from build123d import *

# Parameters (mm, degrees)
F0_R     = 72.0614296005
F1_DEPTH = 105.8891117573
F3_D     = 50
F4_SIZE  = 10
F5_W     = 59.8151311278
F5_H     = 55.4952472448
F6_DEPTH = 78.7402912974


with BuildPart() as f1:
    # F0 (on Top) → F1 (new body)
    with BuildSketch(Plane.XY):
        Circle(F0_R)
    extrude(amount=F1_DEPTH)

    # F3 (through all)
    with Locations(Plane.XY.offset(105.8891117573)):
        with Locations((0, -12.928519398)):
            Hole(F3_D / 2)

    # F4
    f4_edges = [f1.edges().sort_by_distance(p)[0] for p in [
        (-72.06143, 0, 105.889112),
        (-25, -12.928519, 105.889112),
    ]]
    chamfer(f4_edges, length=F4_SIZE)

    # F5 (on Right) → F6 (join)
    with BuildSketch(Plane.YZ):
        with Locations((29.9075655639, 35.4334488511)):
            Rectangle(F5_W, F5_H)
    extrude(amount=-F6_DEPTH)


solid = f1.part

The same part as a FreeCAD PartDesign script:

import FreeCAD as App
import Part
import Sketcher
from FreeCAD import Vector
Q = App.Units.Quantity


def edges_at(feature, points):
    """Names of the edges that pass closest to the given points."""
    edges = feature.Shape.Edges
    near = lambda p: min(range(len(edges)), key=lambda i: edges[i].distToShape(Part.Vertex(*p))[0])
    return sorted({f"Edge{near(p) + 1}" for p in points})

doc = App.newDocument("Part")
body = doc.addObject("PartDesign::Body", "Body")

# Sketch on XY plane
sketch1 = body.newObject("Sketcher::SketchObject", "Sketch")
sketch1.AttachmentSupport = (doc.getObject("XY_Plane"), [""])
sketch1.MapMode = "FlatFace"
sketch1.addGeometry(Part.Circle(Vector(0, 0, 0), Vector(0, 0, 1), 72), False)
sketch1.addConstraint([
    Sketcher.Constraint("Coincident", 0, 3, -1, 1),
    Sketcher.Constraint("Diameter", 0, Q("144.122859 mm")),
])
pad1 = body.newObject("PartDesign::Pad", "Pad")
pad1.Profile = sketch1
pad1.Length = 105.889112

# Sketch on XY plane
sketch2 = body.newObject("Sketcher::SketchObject", "Sketch001")
sketch2.AttachmentSupport = (doc.getObject("XY_Plane"), [""])
sketch2.MapMode = "FlatFace"
sketch2.AttachmentOffset = App.Placement(Vector(0, 0, 105.889112), App.Rotation())
sketch2.addGeometry(Part.Circle(Vector(0, -13, 0), Vector(0, 0, 1), 25), False)
sketch2.addConstraint([
    Sketcher.Constraint("PointOnObject", 0, 3, -2),
    Sketcher.Constraint("Diameter", 0, Q("50 mm")),
    Sketcher.Constraint("DistanceY", 0, 3, -1, 1, Q("12.928519 mm")),
])
doc.recompute()
hole = body.newObject("PartDesign::Hole", "Hole")
hole.Profile = sketch2
hole.ThreadType = "None"
hole.Diameter = 50
hole.DepthType = "ThroughAll"
doc.recompute()

chamfer = body.newObject("PartDesign::Chamfer", "Chamfer")
chamfer.Base = (hole, edges_at(hole, [(-72.061, 0, 105.889), (25, -12.929, 105.889)]))
chamfer.Size = 10

# Sketch on YZ plane
sketch3 = body.newObject("Sketcher::SketchObject", "Sketch002")
sketch3.AttachmentSupport = (doc.getObject("YZ_Plane"), [""])
sketch3.MapMode = "FlatFace"
sketch3.addGeometry([
    Part.LineSegment(Vector(0, 63, 0), Vector(0, 8, 0)),
    Part.LineSegment(Vector(0, 8, 0), Vector(60, 8, 0)),
    Part.LineSegment(Vector(60, 8, 0), Vector(60, 63, 0)),
    Part.LineSegment(Vector(60, 63, 0), Vector(0, 63, 0)),
], False)
sketch3.addConstraint([
    Sketcher.Constraint("Coincident", 0, 2, 1, 1),
    Sketcher.Constraint("Coincident", 1, 2, 2, 1),
    Sketcher.Constraint("Coincident", 2, 2, 3, 1),
    Sketcher.Constraint("Coincident", 3, 2, 0, 1),
    Sketcher.Constraint("Vertical", 0),
    Sketcher.Constraint("Horizontal", 1),
    Sketcher.Constraint("Vertical", 2),
    Sketcher.Constraint("Horizontal", 3),
    Sketcher.Constraint("PointOnObject", 0, 2, -2),
    Sketcher.Constraint("DistanceX", 1, 1, 1, 2, Q("59.815131 mm")),
    Sketcher.Constraint("DistanceY", 0, 2, 0, 1, Q("55.495247 mm")),
    Sketcher.Constraint("DistanceY", -1, 1, 0, 2, Q("7.685825 mm")),
])
pad2 = body.newObject("PartDesign::Pad", "Pad001")
pad2.Profile = sketch3
pad2.Length = 78.740291
pad2.Reversed = True

doc.recompute()
